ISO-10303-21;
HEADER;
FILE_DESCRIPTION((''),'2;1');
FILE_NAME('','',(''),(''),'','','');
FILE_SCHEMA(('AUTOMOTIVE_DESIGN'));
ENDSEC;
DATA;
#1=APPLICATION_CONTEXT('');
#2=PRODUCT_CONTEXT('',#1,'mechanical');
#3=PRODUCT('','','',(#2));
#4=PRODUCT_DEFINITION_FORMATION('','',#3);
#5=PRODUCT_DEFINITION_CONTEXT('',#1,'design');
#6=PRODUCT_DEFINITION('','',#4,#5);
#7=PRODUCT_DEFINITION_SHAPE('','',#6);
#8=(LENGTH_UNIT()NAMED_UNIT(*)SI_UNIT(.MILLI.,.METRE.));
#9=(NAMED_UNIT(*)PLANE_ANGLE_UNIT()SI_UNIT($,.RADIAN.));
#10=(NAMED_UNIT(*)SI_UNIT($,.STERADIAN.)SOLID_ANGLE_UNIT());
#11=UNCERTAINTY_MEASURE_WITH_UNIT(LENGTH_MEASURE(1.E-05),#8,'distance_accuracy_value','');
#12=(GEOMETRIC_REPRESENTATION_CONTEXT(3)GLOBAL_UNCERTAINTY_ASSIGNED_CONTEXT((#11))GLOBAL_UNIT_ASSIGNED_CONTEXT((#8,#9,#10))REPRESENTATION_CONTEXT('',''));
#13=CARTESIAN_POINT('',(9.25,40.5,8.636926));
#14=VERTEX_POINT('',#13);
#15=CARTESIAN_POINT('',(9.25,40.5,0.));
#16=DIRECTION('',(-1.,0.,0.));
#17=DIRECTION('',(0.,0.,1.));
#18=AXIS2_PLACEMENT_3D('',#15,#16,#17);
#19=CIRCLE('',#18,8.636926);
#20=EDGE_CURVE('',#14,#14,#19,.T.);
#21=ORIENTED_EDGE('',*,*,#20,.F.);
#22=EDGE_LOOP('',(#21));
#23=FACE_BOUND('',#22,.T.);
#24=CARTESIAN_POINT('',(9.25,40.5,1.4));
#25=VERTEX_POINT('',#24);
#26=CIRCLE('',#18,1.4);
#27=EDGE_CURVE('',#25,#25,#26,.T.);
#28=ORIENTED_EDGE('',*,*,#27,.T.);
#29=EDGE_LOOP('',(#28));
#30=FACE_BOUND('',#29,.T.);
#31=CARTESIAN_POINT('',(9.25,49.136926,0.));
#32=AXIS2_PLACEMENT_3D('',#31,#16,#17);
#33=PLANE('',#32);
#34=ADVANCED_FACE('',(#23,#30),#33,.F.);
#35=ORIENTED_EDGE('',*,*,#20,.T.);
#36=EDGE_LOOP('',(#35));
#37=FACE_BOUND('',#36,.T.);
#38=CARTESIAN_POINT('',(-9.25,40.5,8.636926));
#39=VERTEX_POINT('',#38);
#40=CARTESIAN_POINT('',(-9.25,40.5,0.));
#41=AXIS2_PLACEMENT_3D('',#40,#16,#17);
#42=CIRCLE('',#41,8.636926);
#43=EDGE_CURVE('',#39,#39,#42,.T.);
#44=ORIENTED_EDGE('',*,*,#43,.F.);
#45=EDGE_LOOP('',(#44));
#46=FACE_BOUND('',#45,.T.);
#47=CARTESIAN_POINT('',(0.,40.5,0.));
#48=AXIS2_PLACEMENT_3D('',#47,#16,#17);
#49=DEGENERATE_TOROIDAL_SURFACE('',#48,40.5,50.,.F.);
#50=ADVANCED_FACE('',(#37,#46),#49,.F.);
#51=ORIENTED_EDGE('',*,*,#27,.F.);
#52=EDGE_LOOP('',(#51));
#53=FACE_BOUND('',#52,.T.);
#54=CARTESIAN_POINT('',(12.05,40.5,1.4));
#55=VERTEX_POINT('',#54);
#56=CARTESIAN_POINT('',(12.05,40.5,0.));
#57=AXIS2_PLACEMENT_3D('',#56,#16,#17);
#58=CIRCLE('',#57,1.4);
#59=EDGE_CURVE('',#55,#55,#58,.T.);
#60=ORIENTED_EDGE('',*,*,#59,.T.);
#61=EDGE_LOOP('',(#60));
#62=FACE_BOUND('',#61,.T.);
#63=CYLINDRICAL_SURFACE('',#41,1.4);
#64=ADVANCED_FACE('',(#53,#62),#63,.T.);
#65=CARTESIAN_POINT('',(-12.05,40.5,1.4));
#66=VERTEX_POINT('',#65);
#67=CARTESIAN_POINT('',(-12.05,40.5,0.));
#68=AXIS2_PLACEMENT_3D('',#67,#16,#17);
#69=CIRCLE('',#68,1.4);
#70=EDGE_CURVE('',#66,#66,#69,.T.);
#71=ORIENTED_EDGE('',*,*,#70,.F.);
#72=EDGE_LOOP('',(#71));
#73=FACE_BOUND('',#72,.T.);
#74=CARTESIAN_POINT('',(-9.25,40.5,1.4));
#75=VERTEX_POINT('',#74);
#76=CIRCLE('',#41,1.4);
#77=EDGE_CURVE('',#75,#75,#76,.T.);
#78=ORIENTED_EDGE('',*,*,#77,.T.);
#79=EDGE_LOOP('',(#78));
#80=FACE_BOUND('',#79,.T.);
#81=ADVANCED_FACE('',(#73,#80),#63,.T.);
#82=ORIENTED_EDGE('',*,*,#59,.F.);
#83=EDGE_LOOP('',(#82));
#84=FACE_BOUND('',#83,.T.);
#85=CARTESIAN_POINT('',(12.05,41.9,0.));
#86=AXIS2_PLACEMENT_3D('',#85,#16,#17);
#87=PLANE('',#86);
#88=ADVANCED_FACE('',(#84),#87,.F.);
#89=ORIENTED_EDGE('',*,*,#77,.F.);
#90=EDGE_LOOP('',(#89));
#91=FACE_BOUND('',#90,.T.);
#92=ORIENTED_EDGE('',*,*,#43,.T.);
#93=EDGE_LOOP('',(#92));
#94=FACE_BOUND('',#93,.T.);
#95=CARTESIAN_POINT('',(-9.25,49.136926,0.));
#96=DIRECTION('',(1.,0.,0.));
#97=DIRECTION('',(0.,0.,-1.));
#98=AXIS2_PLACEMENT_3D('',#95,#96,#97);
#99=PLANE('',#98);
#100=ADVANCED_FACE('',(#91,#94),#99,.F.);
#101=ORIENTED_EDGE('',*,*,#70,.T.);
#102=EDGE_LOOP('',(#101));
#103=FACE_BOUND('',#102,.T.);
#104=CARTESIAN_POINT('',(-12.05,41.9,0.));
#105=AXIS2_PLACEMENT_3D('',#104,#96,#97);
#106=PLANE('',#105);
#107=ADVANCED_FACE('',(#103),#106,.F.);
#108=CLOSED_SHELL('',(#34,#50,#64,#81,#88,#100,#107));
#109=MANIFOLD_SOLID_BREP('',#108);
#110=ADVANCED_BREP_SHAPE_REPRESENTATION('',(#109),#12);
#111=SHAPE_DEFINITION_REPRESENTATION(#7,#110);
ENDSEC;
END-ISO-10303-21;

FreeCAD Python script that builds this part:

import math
import FreeCAD as App
import Part
import Sketcher

V = App.Vector
Q = App.Units.Quantity

doc = App.newDocument("Part")
body = doc.addObject("PartDesign::Body", "Body")

# Sketch on XY plane
sketch1 = body.newObject("Sketcher::SketchObject", "Sketch")
sketch1.AttachmentSupport = (doc.getObject("XY_Plane"), [""])
sketch1.MapMode = "FlatFace"
sketch1.addGeometry([
    Part.LineSegment(V(9.2, 41.9, 0), V(9.2, 49.1, 0)),  # 0
    Part.ArcOfCircle(Part.Circle(V(0, 0, 0), V(0, 0, 1), 50), math.radians(79), math.radians(101)),  # 1
    Part.LineSegment(V(-9.2, 49.1, 0), V(-9.2, 41.9, 0)),  # 2
    Part.LineSegment(V(-9.2, 41.9, 0), V(-12.1, 41.9, 0)),  # 3
    Part.LineSegment(V(-12.1, 41.9, 0), V(-12.1, 40.5, 0)),  # 4
    Part.LineSegment(V(-12.1, 40.5, 0), V(12.1, 40.5, 0)),  # 5
    Part.LineSegment(V(12.1, 40.5, 0), V(12.1, 41.9, 0)),  # 6
    Part.LineSegment(V(12.1, 41.9, 0), V(9.2, 41.9, 0)),  # 7
], False)
sketch1.addGeometry(Part.LineSegment(V(-12.1, 40.5, 0), V(12.1, 40.5, 0)), True)  # axis
sketch1.addConstraint([
    Sketcher.Constraint("Coincident", 0, 2, 1, 1),
    Sketcher.Constraint("Coincident", 1, 2, 2, 1),
    Sketcher.Constraint("Coincident", 2, 2, 3, 1),
    Sketcher.Constraint("Coincident", 3, 2, 4, 1),
    Sketcher.Constraint("Coincident", 4, 2, 5, 1),
    Sketcher.Constraint("Coincident", 5, 2, 6, 1),
    Sketcher.Constraint("Coincident", 6, 2, 7, 1),
    Sketcher.Constraint("Coincident", 7, 2, 0, 1),
    Sketcher.Constraint("Vertical", 0),
    Sketcher.Constraint("Vertical", 2),
    Sketcher.Constraint("Horizontal", 3),
    Sketcher.Constraint("Vertical", 4),
    Sketcher.Constraint("Horizontal", 5),
    Sketcher.Constraint("Vertical", 6),
    Sketcher.Constraint("Horizontal", 7),
    Sketcher.Constraint("Horizontal", 8),
    Sketcher.Constraint("Coincident", 1, 3, -1, 1),
    Sketcher.Constraint("Coincident", 8, 1, 4, 2),
    Sketcher.Constraint("Symmetric", 3, 2, 6, 2, -2),
    Sketcher.Constraint("Horizontal", 0, 2, 1, 2),
    Sketcher.Constraint("Vertical", 6, 2, 8, 2),
    Sketcher.Constraint("Radius", 1, Q("50 mm")),
    Sketcher.Constraint("DistanceX", 3, 2, 3, 1, Q("2.8 mm")),
    Sketcher.Constraint("DistanceX", 5, 1, 5, 2, Q("24.1 mm")),
    Sketcher.Constraint("DistanceY", 4, 2, 4, 1, Q("1.4 mm")),
    Sketcher.Constraint("DistanceY", -1, 1, 2, 2, Q("41.9 mm")),
])
revolution = body.newObject("PartDesign::Revolution", "Revolution")
revolution.Profile = sketch1
revolution.ReferenceAxis = (sketch1, ["Axis0"])
revolution.Angle = 360

doc.recompute()
